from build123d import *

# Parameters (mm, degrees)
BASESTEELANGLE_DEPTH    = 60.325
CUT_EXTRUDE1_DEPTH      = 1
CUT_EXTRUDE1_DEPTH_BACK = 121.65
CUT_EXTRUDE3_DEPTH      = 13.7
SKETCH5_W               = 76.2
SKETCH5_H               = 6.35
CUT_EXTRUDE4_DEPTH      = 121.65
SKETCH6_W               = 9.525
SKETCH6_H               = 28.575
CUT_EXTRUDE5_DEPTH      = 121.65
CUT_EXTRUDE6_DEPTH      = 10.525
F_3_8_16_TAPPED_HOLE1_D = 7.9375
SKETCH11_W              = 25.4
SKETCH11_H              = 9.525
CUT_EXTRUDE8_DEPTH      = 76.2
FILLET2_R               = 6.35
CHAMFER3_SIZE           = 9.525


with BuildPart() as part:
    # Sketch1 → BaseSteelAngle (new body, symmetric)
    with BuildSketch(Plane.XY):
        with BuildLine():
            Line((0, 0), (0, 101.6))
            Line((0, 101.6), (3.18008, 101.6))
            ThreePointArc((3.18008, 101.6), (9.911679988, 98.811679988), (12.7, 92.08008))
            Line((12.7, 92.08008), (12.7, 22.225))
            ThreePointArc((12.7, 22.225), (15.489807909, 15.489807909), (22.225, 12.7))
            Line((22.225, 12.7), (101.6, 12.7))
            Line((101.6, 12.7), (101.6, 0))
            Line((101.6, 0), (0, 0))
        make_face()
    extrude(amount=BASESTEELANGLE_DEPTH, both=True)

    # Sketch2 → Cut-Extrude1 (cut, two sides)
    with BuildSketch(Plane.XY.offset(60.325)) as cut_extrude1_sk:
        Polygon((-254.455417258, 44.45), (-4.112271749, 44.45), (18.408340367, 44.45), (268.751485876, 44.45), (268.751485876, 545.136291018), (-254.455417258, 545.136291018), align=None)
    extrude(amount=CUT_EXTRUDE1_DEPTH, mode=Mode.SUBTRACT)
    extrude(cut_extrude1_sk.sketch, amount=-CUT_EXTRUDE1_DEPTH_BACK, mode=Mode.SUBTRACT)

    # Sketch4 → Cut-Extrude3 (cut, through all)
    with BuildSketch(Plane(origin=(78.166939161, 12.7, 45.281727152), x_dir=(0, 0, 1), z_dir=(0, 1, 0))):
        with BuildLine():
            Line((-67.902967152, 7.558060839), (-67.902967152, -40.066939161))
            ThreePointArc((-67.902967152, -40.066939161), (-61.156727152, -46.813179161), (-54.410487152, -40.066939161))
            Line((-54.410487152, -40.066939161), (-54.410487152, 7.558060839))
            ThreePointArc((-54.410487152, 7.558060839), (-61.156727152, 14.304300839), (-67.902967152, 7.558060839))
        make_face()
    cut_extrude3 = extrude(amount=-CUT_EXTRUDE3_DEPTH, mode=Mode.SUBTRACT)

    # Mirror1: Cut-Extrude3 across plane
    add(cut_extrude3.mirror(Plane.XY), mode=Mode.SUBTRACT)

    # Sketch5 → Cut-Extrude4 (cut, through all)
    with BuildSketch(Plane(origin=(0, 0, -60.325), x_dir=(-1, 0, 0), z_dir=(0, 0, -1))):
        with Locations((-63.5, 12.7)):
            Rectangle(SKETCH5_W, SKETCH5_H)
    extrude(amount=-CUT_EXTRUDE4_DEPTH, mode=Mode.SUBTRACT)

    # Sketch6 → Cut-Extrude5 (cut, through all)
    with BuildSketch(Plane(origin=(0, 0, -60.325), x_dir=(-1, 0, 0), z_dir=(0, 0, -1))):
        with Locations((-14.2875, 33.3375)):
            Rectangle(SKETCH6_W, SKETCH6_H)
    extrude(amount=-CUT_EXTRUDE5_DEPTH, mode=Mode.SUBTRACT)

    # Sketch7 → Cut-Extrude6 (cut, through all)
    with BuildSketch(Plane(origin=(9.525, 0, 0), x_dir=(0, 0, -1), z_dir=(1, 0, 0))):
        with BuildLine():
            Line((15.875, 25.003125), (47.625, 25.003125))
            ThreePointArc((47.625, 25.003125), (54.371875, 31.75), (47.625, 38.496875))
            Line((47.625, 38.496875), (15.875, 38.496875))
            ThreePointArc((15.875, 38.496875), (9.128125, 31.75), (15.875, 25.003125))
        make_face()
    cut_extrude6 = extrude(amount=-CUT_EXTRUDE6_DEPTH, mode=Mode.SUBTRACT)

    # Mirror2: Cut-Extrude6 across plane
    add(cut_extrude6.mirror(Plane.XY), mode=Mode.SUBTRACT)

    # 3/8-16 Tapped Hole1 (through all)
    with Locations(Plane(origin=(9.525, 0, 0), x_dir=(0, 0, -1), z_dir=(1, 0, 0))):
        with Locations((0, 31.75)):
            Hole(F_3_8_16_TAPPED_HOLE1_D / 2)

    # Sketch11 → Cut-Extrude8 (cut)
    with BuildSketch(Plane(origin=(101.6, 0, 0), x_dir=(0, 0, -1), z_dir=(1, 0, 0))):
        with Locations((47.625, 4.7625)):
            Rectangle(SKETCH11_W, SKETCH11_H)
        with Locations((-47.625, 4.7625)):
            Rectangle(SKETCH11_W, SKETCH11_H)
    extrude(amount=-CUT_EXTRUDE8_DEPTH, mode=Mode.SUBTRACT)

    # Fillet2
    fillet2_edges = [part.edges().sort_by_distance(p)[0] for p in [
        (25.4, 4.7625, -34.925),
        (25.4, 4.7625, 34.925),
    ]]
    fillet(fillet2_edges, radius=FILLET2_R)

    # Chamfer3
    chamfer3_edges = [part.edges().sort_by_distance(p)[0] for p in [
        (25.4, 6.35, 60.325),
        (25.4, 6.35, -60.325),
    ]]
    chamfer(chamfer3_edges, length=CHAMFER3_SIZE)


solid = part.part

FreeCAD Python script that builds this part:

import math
import FreeCAD as App
import Part
import Sketcher

V = App.Vector
Q = App.Units.Quantity


def edges_at(feature, points):
    """Names of the edges that pass closest to the given points."""
    edges = feature.Shape.Edges
    near = lambda p: min(range(len(edges)), key=lambda i: edges[i].distToShape(Part.Vertex(*p))[0])
    return sorted({f"Edge{near(p) + 1}" for p in points})


def add_polygon(sketch, points):
    """Adds a closed chain of lines whose ends are joined by coincident constraints."""
    first, n = sketch.GeometryCount, len(points)
    for a, b in zip(points, points[1:] + points[:1]):
        sketch.addGeometry(Part.LineSegment(App.Vector(*a, 0), App.Vector(*b, 0)), False)
    for i in range(n):
        sketch.addConstraint(Sketcher.Constraint("Coincident", first + i, 2, first + (i + 1) % n, 1))

doc = App.newDocument("Part")
params = doc.addObject("Spreadsheet::Sheet", "Params")
for row, (alias, value) in enumerate([
    ("sketch1_width", "4 in"),
    ("sketch1_height", "0.5 in"),
    ("sketch1_radius", "0.375 in"),
    ("pad1_length", "4.75 in"),
    ("sketch3_width", "1.875 in"),
    ("sketch4_width", "3 in"),
    ("sketch4_height", "0.25 in"),
    ("sketch5_width", "0.375 in"),
    ("sketch5_height", "1.125 in"),
    ("sketch6_radius", "0.265625 in"),
    ("sketch6_height", "1.25 in"),
    ("sketch7_diameter", "0.3125 in"),
    ("hole_diameter", "0.3125 in"),
    ("sketch8_height", "1 in"),
    ("sketch8_width", "0.375 in"),
    ("pocket6_length", "3 in"),
    ("fillet_radius", "0.25 in"),
    ("chamfer_size", "0.375 in"),
], start=1):
    params.set(f"A{row}", alias)
    params.set(f"B{row}", "=" + value)
    params.setAlias(f"B{row}", alias)

body = doc.addObject("PartDesign::Body", "Body")

# Sketch on XY plane
sketch1 = doc.addObject("Sketcher::SketchObject", "Sketch")
body.addObject(sketch1)
sketch1.AttachmentSupport = (doc.XY_Plane, [""])
sketch1.MapMode = "FlatFace"
sketch1.addGeometry(Part.LineSegment(V(0, 101.6, 0), V(0, 0, 0)), False)
sketch1.addGeometry(Part.LineSegment(V(0, 0, 0), V(101.6, 0, 0)), False)
sketch1.addGeometry(Part.LineSegment(V(101.6, 0, 0), V(101.6, 12.7, 0)), False)
sketch1.addGeometry(Part.LineSegment(V(101.6, 12.7, 0), V(22.2, 12.7, 0)), False)
sketch1.addGeometry(Part.ArcOfCircle(Part.Circle(V(22.2, 22.2, 0), V(0, 0, 1), 9.5), math.radians(180), math.radians(270)), False)
sketch1.addGeometry(Part.LineSegment(V(12.7, 22.2, 0), V(12.7, 92.1, 0)), False)
sketch1.addGeometry(Part.ArcOfCircle(Part.Circle(V(3.2, 92.1, 0), V(0, 0, 1), 9.5), math.radians(0), math.radians(90)), False)
sketch1.addGeometry(Part.LineSegment(V(3.2, 101.6, 0), V(0, 101.6, 0)), False)
sketch1.addConstraint(Sketcher.Constraint("Coincident", 0, 2, 1, 1))
sketch1.addConstraint(Sketcher.Constraint("Coincident", 1, 2, 2, 1))
sketch1.addConstraint(Sketcher.Constraint("Coincident", 2, 2, 3, 1))
sketch1.addConstraint(Sketcher.Constraint("Tangent", 3, 2, 4, 2))
sketch1.addConstraint(Sketcher.Constraint("Tangent", 4, 1, 5, 1))
sketch1.addConstraint(Sketcher.Constraint("Tangent", 5, 2, 6, 1))
sketch1.addConstraint(Sketcher.Constraint("Tangent", 6, 2, 7, 1))
sketch1.addConstraint(Sketcher.Constraint("Coincident", 7, 2, 0, 1))
sketch1.addConstraint(Sketcher.Constraint("Vertical", 0))
sketch1.addConstraint(Sketcher.Constraint("Horizontal", 1))
sketch1.addConstraint(Sketcher.Constraint("Vertical", 2))
sketch1.addConstraint(Sketcher.Constraint("Horizontal", 3))
sketch1.addConstraint(Sketcher.Constraint("Vertical", 5))
sketch1.addConstraint(Sketcher.Constraint("Horizontal", 7))
sketch1.addConstraint(Sketcher.Constraint("Coincident", 0, 2, -1, 1))
sketch1.addConstraint(Sketcher.Constraint("Equal", 1, 0))
sketch1.addConstraint(Sketcher.Constraint("DistanceX", 1, 1, 1, 2, Q("4 in")))
sketch1.addConstraint(Sketcher.Constraint("DistanceY", 2, 1, 2, 2, Q("0.5 in")))
sketch1.addConstraint(Sketcher.Constraint("Radius", 4, Q("0.375 in")))
sketch1.addConstraint(Sketcher.Constraint("DistanceX", -1, 1, 4, 1, Q("0.5 in")))
sketch1.addConstraint(Sketcher.Constraint("Radius", 6, Q("0.3748 in")))
sketch1.setExpression("Constraints[16]", "Params.sketch1_width")
sketch1.setExpression("Constraints[17]", "Params.sketch1_height")
sketch1.setExpression("Constraints[18]", "Params.sketch1_radius")
pad1 = doc.addObject("PartDesign::Pad", "Pad")
body.addObject(pad1)
pad1.Profile = sketch1
pad1.setExpression("Length", "Params.pad1_length")
pad1.Midplane = True

# Sketch on XY plane
sketch2 = doc.addObject("Sketcher::SketchObject", "Sketch001")
body.addObject(sketch2)
sketch2.AttachmentSupport = (doc.XY_Plane, [""])
sketch2.MapMode = "FlatFace"
sketch2.AttachmentOffset = App.Placement(V(0, 0, 2.375 * 25.4), App.Rotation())
add_polygon(sketch2, [(-254, 44), (269, 44), (269, 545), (-254, 545)])  # lines 0-3
sketch2.addConstraint(Sketcher.Constraint("Horizontal", 0))
sketch2.addConstraint(Sketcher.Constraint("Vertical", 1))
sketch2.addConstraint(Sketcher.Constraint("Horizontal", 2))
sketch2.addConstraint(Sketcher.Constraint("Vertical", 3))
sketch2.addConstraint(Sketcher.Constraint("DistanceY", -1, 1, 0, 2, Q("1.75 in")))
sketch2.addConstraint(Sketcher.Constraint("DistanceY", 1, 1, 1, 2, Q("500.686291 mm")))
sketch2.addConstraint(Sketcher.Constraint("DistanceX", 0, 1, 0, 2, Q("523.206903 mm")))
sketch2.addConstraint(Sketcher.Constraint("DistanceX", -1, 1, 0, 2, Q("268.751486 mm")))
pocket1 = doc.addObject("PartDesign::Pocket", "Pocket")
body.addObject(pocket1)
pocket1.Profile = sketch2
pocket1.Type = "ThroughAll"
pocket1.Midplane = True

# Sketch on XZ plane
sketch3 = doc.addObject("Sketcher::SketchObject", "Sketch002")
body.addObject(sketch3)
sketch3.AttachmentSupport = (doc.XZ_Plane, [""])
sketch3.MapMode = "FlatFace"
sketch3.AttachmentOffset = App.Placement(V(0, 0, -0.5 * 25.4), App.Rotation())
sketch3.addGeometry(Part.LineSegment(V(86, -23, 0), V(38, -23, 0)), False)
sketch3.addGeometry(Part.ArcOfCircle(Part.Circle(V(38, -16, 0), V(0, 0, 1), 7), math.radians(90), math.radians(270)), False)
sketch3.addGeometry(Part.LineSegment(V(38, -9, 0), V(86, -9, 0)), False)
sketch3.addGeometry(Part.ArcOfCircle(Part.Circle(V(86, -16, 0), V(0, 0, 1), 7), math.radians(-90), math.radians(90)), False)
sketch3.addConstraint(Sketcher.Constraint("Tangent", 0, 2, 1, 2))
sketch3.addConstraint(Sketcher.Constraint("Tangent", 1, 1, 2, 1))
sketch3.addConstraint(Sketcher.Constraint("Tangent", 2, 2, 3, 2))
sketch3.addConstraint(Sketcher.Constraint("Tangent", 3, 1, 0, 1))
sketch3.addConstraint(Sketcher.Constraint("Horizontal", 0))
sketch3.addConstraint(Sketcher.Constraint("Horizontal", 2))
sketch3.addConstraint(Sketcher.Constraint("DistanceX", -1, 1, 1, 3, Q("1.5 in")))
sketch3.addConstraint(Sketcher.Constraint("Radius", 1, Q("0.2656 in")))
sketch3.addConstraint(Sketcher.Constraint("DistanceX", 0, 2, 0, 1, Q("1.875 in")))
sketch3.addConstraint(Sketcher.Constraint("DistanceY", 1, 3, -1, 1, Q("0.625 in")))
sketch3.setExpression("Constraints[8]", "Params.sketch3_width")
pocket2 = doc.addObject("PartDesign::Pocket", "Pocket001")
body.addObject(pocket2)
pocket2.Profile = sketch3
pocket2.Type = "ThroughAll"
pocket2.Reversed = True
doc.recompute()

mirrored = doc.addObject("PartDesign::Mirrored", "Mirrored")
body.addObject(mirrored)
mirrored.Originals = [pocket2]
mirrored.MirrorPlane = (doc.XY_Plane, [""])
body.Tip = mirrored

# Sketch on XY plane
sketch4 = doc.addObject("Sketcher::SketchObject", "Sketch003")
body.addObject(sketch4)
sketch4.AttachmentSupport = (doc.XY_Plane, [""])
sketch4.MapMode = "FlatFace"
sketch4.AttachmentOffset = App.Placement(V(0, 0, -2.375 * 25.4), App.Rotation())
add_polygon(sketch4, [(102, 16), (102, 10), (25, 10), (25, 16)])  # lines 0-3
sketch4.addConstraint(Sketcher.Constraint("Vertical", 0))
sketch4.addConstraint(Sketcher.Constraint("Horizontal", 1))
sketch4.addConstraint(Sketcher.Constraint("Vertical", 2))
sketch4.addConstraint(Sketcher.Constraint("Horizontal", 3))
sketch4.addConstraint(Sketcher.Constraint("DistanceX", 1, 2, 1, 1, Q("3 in")))
sketch4.addConstraint(Sketcher.Constraint("DistanceX", -1, 1, 0, 2, Q("4 in")))
sketch4.addConstraint(Sketcher.Constraint("DistanceY", 0, 2, 0, 1, Q("0.25 in")))
sketch4.addConstraint(Sketcher.Constraint("DistanceY", -1, 1, 0, 2, Q("0.375 in")))
sketch4.setExpression("Constraints[8]", "Params.sketch4_width")
sketch4.setExpression("Constraints[10]", "Params.sketch4_height")
pocket3 = doc.addObject("PartDesign::Pocket", "Pocket002")
body.addObject(pocket3)
pocket3.Profile = sketch4
pocket3.Type = "ThroughAll"
pocket3.Reversed = True

# Sketch on XY plane
sketch5 = doc.addObject("Sketcher::SketchObject", "Sketch004")
body.addObject(sketch5)
sketch5.AttachmentSupport = (doc.XY_Plane, [""])
sketch5.MapMode = "FlatFace"
sketch5.AttachmentOffset = App.Placement(V(0, 0, -2.375 * 25.4), App.Rotation())
add_polygon(sketch5, [(19, 48), (19, 19), (10, 19), (10, 48)])  # lines 0-3
sketch5.addConstraint(Sketcher.Constraint("Vertical", 0))
sketch5.addConstraint(Sketcher.Constraint("Horizontal", 1))
sketch5.addConstraint(Sketcher.Constraint("Vertical", 2))
sketch5.addConstraint(Sketcher.Constraint("Horizontal", 3))
sketch5.addConstraint(Sketcher.Constraint("DistanceX", 1, 2, 1, 1, Q("0.375 in")))
sketch5.addConstraint(Sketcher.Constraint("DistanceY", 0, 2, 0, 1, Q("1.125 in")))
sketch5.addConstraint(Sketcher.Constraint("DistanceX", -1, 1, 0, 2, Q("0.75 in")))
sketch5.addConstraint(Sketcher.Constraint("DistanceY", -1, 1, 0, 2, Q("0.75 in")))
sketch5.setExpression("Constraints[8]", "Params.sketch5_width")
sketch5.setExpression("Constraints[9]", "Params.sketch5_height")
pocket4 = doc.addObject("PartDesign::Pocket", "Pocket003")
body.addObject(pocket4)
pocket4.Profile = sketch5
pocket4.Type = "ThroughAll"
pocket4.Reversed = True

# Sketch on YZ plane
sketch6 = doc.addObject("Sketcher::SketchObject", "Sketch005")
body.addObject(sketch6)
sketch6.AttachmentSupport = (doc.YZ_Plane, [""])
sketch6.MapMode = "FlatFace"
sketch6.AttachmentOffset = App.Placement(V(0, 0, 0.375 * 25.4), App.Rotation())
sketch6.addGeometry(Part.LineSegment(V(25, -16, 0), V(25, -48, 0)), False)
sketch6.addGeometry(Part.ArcOfCircle(Part.Circle(V(32, -48, 0), V(0, 0, 1), 7), math.radians(180), math.radians(360)), False)
sketch6.addGeometry(Part.LineSegment(V(38, -48, 0), V(38, -16, 0)), False)
sketch6.addGeometry(Part.ArcOfCircle(Part.Circle(V(32, -16, 0), V(0, 0, 1), 7), math.radians(0), math.radians(180)), False)
sketch6.addConstraint(Sketcher.Constraint("Tangent", 0, 2, 1, 1))
sketch6.addConstraint(Sketcher.Constraint("Tangent", 1, 2, 2, 1))
sketch6.addConstraint(Sketcher.Constraint("Tangent", 2, 2, 3, 1))
sketch6.addConstraint(Sketcher.Constraint("Tangent", 3, 2, 0, 1))
sketch6.addConstraint(Sketcher.Constraint("Vertical", 0))
sketch6.addConstraint(Sketcher.Constraint("Vertical", 2))
sketch6.addConstraint(Sketcher.Constraint("Radius", 1, Q("0.265625 in")))
sketch6.addConstraint(Sketcher.Constraint("DistanceY", 0, 2, 0, 1, Q("1.25 in")))
sketch6.addConstraint(Sketcher.Constraint("DistanceX", -1, 1, 1, 3, Q("1.25 in")))
sketch6.addConstraint(Sketcher.Constraint("DistanceY", 1, 3, -1, 1, Q("1.875 in")))
sketch6.setExpression("Constraints[6]", "Params.sketch6_radius")
sketch6.setExpression("Constraints[7]", "Params.sketch6_height")
pocket5 = doc.addObject("PartDesign::Pocket", "Pocket004")
body.addObject(pocket5)
pocket5.Profile = sketch6
pocket5.Type = "ThroughAll"
doc.recompute()

mirrored2 = doc.addObject("PartDesign::Mirrored", "Mirrored001")
body.addObject(mirrored2)
mirrored2.Originals = [pocket5]
mirrored2.MirrorPlane = (doc.XY_Plane, [""])
body.Tip = mirrored2

# Sketch on YZ plane
sketch7 = doc.addObject("Sketcher::SketchObject", "Sketch006")
body.addObject(sketch7)
sketch7.AttachmentSupport = (doc.YZ_Plane, [""])
sketch7.MapMode = "FlatFace"
sketch7.AttachmentOffset = App.Placement(V(0, 0, 0.375 * 25.4), App.Rotation())
sketch7.addGeometry(Part.Circle(V(31.8, 0, 0), V(0, 0, 1), 4), False)
sketch7.addConstraint(Sketcher.Constraint("PointOnObject", 0, 3, -1))
sketch7.addConstraint(Sketcher.Constraint("Diameter", 0, Q("0.3125 in")))
sketch7.addConstraint(Sketcher.Constraint("DistanceX", -1, 1, 0, 3, Q("1.25 in")))
sketch7.setExpression("Constraints[1]", "Params.sketch7_diameter")
doc.recompute()
hole = doc.addObject("PartDesign::Hole", "Hole")
body.addObject(hole)
hole.Profile = sketch7
hole.ThreadType = "None"
hole.setExpression("Diameter", "Params.hole_diameter")
hole.DepthType = "ThroughAll"

# Sketch on YZ plane
sketch8 = doc.addObject("Sketcher::SketchObject", "Sketch007")
body.addObject(sketch8)
sketch8.AttachmentSupport = (doc.YZ_Plane, [""])
sketch8.MapMode = "FlatFace"
sketch8.AttachmentOffset = App.Placement(V(0, 0, 4 * 25.4), App.Rotation())
add_polygon(sketch8, [(10, -35), (0, -35), (0, -60), (10, -60)])  # lines 0-3
add_polygon(sketch8, [(10, 60), (0, 60), (0, 35), (10, 35)])  # lines 4-7
sketch8.addConstraint(Sketcher.Constraint("Horizontal", 0))
sketch8.addConstraint(Sketcher.Constraint("Vertical", 1))
sketch8.addConstraint(Sketcher.Constraint("Horizontal", 2))
sketch8.addConstraint(Sketcher.Constraint("Vertical", 3))
sketch8.addConstraint(Sketcher.Constraint("Horizontal", 4))
sketch8.addConstraint(Sketcher.Constraint("Vertical", 5))
sketch8.addConstraint(Sketcher.Constraint("Horizontal", 6))
sketch8.addConstraint(Sketcher.Constraint("Vertical", 7))
sketch8.addConstraint(Sketcher.Constraint("Symmetric", 1, 2, 4, 2, -1, 1))
sketch8.addConstraint(Sketcher.Constraint("Symmetric", 0, 2, 5, 2, -1))
sketch8.addConstraint(Sketcher.Constraint("Vertical", 3, 2, 6, 2))
sketch8.addConstraint(Sketcher.Constraint("DistanceY", 1, 2, 1, 1, Q("1 in")))
sketch8.addConstraint(Sketcher.Constraint("DistanceX", 0, 2, 0, 1, Q("0.375 in")))
sketch8.addConstraint(Sketcher.Constraint("DistanceY", 0, 2, 4, 2, Q("3.75 in")))
sketch8.setExpression("Constraints[19]", "Params.sketch8_height")
sketch8.setExpression("Constraints[20]", "Params.sketch8_width")
pocket6 = doc.addObject("PartDesign::Pocket", "Pocket005")
body.addObject(pocket6)
pocket6.Profile = sketch8
pocket6.setExpression("Length", "Params.pocket6_length")
doc.recompute()

fillet = doc.addObject("PartDesign::Fillet", "Fillet")
body.addObject(fillet)
fillet.Base = (pocket6, edges_at(pocket6, [(25.4, 4.763, -34.925), (25.4, 4.763, 34.925)]))
fillet.setExpression("Radius", "Params.fillet_radius")
doc.recompute()

chamfer = doc.addObject("PartDesign::Chamfer", "Chamfer")
body.addObject(chamfer)
chamfer.Base = (fillet, edges_at(fillet, [(25.4, 6.35, 60.325), (25.4, 6.35, -60.325)]))
chamfer.setExpression("Size", "Params.chamfer_size")

doc.recompute()
